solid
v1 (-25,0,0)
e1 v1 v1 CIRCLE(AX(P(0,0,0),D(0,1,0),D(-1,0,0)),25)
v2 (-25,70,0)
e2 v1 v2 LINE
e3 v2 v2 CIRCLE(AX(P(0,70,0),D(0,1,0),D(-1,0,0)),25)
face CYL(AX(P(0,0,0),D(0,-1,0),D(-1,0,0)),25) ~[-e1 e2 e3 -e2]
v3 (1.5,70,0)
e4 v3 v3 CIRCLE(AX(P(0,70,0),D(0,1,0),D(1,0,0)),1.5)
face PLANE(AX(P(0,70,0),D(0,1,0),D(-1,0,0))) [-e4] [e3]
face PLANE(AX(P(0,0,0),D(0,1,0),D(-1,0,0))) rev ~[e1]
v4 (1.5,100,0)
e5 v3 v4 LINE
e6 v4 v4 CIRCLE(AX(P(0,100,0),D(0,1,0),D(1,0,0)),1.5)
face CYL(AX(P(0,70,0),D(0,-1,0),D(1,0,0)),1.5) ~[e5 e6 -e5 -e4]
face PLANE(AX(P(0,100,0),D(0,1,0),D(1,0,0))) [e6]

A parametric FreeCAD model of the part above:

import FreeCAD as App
import Part
import Sketcher
from FreeCAD import Vector

doc = App.newDocument("Part")
body = doc.addObject("PartDesign::Body", "Body")

sketch1 = body.newObject("Sketcher::SketchObject", "Sketch")
sketch1.AttachmentSupport = (doc.getObject("XZ_Plane"), [""])
sketch1.MapMode = "FlatFace"
sketch1.addGeometry(Part.Circle(Vector(0, 0, 0), Vector(0, 0, 1), 25), False)
sketch1.addConstraint([
    Sketcher.Constraint("Coincident", 0, 3, -1, 1),
    Sketcher.Constraint("Diameter", 0, 50.0),
])
pad1 = body.newObject("PartDesign::Pad", "Pad")
pad1.Profile = sketch1
pad1.Length = 70
pad1.Reversed = True

sketch2 = body.newObject("Sketcher::SketchObject", "Sketch001")
sketch2.AttachmentSupport = (doc.getObject("XZ_Plane"), [""])
sketch2.MapMode = "FlatFace"
sketch2.AttachmentOffset = App.Placement(Vector(0, 0, -70), App.Rotation())
sketch2.addGeometry(Part.Circle(Vector(0, 0, 0), Vector(0, 0, 1), 1.5), False)
sketch2.addConstraint([
    Sketcher.Constraint("Coincident", 0, 3, -1, 1),
    Sketcher.Constraint("Diameter", 0, 3.0),
])
pad2 = body.newObject("PartDesign::Pad", "Pad001")
pad2.Profile = sketch2
pad2.Length = 30
pad2.Reversed = True

doc.recompute()
